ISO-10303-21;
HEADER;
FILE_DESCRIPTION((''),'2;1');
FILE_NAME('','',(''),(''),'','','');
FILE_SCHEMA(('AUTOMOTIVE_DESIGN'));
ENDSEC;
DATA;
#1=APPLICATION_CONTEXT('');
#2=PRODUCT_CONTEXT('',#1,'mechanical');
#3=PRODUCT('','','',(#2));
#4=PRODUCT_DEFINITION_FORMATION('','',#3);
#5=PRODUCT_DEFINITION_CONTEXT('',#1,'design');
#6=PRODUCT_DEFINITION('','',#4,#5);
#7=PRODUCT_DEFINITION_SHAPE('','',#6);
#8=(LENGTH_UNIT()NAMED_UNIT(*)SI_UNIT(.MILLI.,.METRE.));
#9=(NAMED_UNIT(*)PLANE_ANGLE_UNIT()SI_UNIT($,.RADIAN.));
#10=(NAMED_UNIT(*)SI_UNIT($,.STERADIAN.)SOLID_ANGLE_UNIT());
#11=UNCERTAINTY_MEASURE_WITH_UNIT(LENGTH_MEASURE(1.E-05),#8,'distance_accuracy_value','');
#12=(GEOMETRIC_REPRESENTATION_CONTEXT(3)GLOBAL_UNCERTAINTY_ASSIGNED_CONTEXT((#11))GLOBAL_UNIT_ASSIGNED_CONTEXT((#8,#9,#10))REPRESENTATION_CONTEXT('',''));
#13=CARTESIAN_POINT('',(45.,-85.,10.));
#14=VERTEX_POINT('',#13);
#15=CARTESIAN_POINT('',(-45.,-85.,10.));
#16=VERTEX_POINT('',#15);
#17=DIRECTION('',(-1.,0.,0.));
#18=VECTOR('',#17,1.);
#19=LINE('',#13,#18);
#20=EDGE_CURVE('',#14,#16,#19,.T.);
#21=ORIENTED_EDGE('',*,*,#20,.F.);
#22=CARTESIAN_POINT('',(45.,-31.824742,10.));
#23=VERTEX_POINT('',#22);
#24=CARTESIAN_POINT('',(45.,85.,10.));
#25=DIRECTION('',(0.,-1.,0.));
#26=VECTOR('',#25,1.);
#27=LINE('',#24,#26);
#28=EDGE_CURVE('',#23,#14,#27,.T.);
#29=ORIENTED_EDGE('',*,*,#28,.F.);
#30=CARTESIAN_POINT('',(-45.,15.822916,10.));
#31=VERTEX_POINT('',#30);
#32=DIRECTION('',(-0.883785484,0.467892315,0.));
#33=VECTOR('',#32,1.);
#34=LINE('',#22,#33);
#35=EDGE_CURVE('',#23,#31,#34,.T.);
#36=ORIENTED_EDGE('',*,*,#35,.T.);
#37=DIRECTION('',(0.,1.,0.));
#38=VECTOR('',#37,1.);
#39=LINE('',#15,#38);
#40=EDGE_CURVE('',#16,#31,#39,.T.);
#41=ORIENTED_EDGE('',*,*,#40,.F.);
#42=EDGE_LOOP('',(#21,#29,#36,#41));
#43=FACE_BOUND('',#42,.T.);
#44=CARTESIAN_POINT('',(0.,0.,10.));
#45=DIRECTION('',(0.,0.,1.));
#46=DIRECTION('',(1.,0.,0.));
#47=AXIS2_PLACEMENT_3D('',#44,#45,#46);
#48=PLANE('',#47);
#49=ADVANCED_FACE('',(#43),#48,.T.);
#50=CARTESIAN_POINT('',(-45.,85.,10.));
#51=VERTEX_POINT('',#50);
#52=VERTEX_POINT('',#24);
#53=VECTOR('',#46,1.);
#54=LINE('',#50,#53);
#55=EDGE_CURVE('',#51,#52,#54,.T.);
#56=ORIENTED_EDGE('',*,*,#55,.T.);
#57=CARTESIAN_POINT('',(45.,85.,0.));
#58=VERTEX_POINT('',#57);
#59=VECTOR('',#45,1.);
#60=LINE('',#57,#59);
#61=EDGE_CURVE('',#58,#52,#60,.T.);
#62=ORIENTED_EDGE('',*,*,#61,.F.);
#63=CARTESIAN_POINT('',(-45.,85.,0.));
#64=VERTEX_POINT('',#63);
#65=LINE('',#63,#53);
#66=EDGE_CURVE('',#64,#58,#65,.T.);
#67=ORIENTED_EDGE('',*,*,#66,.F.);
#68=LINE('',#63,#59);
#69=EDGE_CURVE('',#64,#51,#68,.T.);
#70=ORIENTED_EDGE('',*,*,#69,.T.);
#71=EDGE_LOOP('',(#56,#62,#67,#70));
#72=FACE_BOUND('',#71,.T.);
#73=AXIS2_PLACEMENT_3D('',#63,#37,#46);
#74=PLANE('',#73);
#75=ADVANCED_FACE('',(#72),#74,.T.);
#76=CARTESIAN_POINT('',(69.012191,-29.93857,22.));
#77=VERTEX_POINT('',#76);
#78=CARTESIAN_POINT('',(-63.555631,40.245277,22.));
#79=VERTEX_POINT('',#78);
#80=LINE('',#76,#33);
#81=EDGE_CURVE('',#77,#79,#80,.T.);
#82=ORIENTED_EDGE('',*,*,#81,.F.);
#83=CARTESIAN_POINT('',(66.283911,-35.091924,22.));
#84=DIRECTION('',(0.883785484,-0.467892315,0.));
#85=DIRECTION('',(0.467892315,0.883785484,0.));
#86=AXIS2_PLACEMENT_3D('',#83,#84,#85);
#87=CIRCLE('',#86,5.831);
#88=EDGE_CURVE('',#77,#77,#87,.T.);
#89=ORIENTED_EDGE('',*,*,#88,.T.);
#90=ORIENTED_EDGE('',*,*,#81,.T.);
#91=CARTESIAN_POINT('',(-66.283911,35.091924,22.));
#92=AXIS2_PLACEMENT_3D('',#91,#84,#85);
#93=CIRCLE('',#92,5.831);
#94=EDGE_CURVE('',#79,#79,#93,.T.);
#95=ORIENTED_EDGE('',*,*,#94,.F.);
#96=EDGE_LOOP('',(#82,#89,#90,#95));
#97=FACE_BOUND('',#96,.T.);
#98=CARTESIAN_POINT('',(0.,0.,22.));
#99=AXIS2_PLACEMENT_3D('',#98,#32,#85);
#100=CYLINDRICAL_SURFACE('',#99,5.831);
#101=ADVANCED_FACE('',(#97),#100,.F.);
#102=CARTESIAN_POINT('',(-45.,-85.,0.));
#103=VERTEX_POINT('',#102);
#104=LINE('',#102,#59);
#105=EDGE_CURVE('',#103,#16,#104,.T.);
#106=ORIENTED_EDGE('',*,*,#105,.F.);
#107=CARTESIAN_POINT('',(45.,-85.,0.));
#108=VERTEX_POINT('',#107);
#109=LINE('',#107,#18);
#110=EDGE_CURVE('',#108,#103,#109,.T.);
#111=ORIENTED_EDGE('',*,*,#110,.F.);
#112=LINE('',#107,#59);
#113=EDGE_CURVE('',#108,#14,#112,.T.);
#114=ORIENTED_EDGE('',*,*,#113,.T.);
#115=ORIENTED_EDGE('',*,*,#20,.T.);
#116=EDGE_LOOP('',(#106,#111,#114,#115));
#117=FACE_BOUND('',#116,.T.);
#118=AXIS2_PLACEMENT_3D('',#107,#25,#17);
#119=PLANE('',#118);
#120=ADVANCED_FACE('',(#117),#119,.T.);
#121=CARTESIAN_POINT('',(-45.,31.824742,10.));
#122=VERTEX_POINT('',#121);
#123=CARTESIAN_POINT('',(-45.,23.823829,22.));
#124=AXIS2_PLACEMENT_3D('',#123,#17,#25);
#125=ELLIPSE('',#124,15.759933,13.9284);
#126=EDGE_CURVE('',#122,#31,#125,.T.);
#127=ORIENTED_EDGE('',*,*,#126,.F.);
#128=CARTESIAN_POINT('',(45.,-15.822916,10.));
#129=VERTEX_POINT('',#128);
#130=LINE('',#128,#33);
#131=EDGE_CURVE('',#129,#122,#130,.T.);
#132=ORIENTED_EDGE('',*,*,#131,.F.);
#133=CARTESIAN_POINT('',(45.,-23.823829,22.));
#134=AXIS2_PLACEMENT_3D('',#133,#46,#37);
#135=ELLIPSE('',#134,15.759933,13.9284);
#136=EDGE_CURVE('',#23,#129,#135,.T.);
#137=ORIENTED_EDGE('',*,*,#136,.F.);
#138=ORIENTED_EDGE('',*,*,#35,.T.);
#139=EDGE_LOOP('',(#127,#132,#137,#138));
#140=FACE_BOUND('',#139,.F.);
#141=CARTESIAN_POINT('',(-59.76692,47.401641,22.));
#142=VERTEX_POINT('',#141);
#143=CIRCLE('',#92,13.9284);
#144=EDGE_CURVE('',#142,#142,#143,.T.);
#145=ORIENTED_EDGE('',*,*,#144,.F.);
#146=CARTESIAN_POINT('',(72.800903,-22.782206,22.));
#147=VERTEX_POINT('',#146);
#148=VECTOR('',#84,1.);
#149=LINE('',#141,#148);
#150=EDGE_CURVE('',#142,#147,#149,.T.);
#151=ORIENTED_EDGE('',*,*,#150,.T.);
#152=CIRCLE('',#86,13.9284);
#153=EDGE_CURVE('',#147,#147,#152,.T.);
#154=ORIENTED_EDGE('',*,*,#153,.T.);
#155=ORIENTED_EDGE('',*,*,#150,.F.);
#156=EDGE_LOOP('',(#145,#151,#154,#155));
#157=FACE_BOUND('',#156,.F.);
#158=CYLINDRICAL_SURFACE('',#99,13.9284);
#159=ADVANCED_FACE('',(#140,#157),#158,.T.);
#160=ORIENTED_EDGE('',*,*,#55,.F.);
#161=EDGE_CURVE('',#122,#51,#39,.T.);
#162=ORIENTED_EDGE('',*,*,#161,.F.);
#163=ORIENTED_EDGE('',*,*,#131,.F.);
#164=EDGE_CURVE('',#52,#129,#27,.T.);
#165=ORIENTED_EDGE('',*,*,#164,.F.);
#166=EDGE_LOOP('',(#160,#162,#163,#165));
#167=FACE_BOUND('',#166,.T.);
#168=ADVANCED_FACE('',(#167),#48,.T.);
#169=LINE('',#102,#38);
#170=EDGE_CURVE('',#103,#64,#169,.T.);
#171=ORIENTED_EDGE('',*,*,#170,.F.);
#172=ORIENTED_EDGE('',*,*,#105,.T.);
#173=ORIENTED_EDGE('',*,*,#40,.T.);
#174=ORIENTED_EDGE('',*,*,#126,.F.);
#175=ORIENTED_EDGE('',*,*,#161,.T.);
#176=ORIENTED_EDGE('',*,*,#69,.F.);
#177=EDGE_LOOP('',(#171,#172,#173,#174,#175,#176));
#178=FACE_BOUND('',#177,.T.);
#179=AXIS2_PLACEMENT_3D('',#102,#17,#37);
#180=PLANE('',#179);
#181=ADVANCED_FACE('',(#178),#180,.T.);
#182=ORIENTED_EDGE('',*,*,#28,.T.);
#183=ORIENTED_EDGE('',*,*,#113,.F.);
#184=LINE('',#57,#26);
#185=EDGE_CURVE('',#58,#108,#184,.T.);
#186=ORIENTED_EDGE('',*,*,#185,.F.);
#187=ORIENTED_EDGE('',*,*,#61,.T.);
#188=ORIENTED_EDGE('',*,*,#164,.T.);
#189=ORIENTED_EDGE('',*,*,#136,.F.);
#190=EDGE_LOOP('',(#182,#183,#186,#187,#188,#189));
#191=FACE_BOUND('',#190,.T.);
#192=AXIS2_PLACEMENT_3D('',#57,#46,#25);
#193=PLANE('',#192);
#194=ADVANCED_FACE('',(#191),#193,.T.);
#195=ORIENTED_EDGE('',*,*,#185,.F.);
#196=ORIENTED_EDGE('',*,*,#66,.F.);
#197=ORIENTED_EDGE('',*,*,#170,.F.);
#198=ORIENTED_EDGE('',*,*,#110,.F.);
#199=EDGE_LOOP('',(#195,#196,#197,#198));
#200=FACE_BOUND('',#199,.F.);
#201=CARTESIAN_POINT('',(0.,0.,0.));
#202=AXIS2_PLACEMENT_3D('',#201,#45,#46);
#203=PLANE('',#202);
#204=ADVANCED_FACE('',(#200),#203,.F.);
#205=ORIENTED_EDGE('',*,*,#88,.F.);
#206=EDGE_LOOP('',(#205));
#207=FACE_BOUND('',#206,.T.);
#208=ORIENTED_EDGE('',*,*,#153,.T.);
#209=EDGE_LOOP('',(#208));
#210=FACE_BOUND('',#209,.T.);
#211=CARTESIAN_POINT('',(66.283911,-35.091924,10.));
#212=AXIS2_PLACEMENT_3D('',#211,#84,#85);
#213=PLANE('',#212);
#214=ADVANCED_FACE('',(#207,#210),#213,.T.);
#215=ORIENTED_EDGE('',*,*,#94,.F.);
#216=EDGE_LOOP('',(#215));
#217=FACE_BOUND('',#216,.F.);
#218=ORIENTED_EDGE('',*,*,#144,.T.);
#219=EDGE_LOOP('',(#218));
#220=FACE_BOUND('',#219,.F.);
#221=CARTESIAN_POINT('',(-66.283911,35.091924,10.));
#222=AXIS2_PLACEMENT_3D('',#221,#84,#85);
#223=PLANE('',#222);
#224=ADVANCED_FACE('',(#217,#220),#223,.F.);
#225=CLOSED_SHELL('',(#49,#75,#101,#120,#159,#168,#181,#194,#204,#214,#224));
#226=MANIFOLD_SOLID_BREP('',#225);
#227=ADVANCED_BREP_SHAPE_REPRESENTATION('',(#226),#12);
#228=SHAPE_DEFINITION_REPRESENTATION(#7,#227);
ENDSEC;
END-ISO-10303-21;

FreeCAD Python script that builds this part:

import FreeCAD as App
import Part
import Sketcher
from FreeCAD import Vector

doc = App.newDocument("Part")
body = doc.addObject("PartDesign::Body", "Body")

# Sketch on XY plane
sketch1 = body.newObject("Sketcher::SketchObject", "Sketch")
sketch1.AttachmentSupport = (doc.getObject("XY_Plane"), [""])
sketch1.MapMode = "FlatFace"
sketch1.addGeometry(Part.LineSegment(Vector(-45, -85, 0), Vector(45, -85, 0)), False)
sketch1.addGeometry(Part.LineSegment(Vector(45, -85, 0), Vector(45, 85, 0)), False)
sketch1.addGeometry(Part.LineSegment(Vector(45, 85, 0), Vector(-45, 85, 0)), False)
sketch1.addGeometry(Part.LineSegment(Vector(-45, 85, 0), Vector(-45, -85, 0)), False)
sketch1.addConstraint(Sketcher.Constraint("Coincident", 0, 2, 1, 1))
sketch1.addConstraint(Sketcher.Constraint("Coincident", 1, 2, 2, 1))
sketch1.addConstraint(Sketcher.Constraint("Coincident", 2, 2, 3, 1))
sketch1.addConstraint(Sketcher.Constraint("Coincident", 3, 2, 0, 1))
sketch1.addConstraint(Sketcher.Constraint("Horizontal", 0))
sketch1.addConstraint(Sketcher.Constraint("Vertical", 1))
sketch1.addConstraint(Sketcher.Constraint("Horizontal", 2))
sketch1.addConstraint(Sketcher.Constraint("Vertical", 3))
sketch1.addConstraint(Sketcher.Constraint("Symmetric", 0, 2, 2, 2, -1, 1))
sketch1.addConstraint(Sketcher.Constraint("DistanceX", 0, 1, 0, 2, 90.0))
sketch1.addConstraint(Sketcher.Constraint("DistanceY", 1, 1, 1, 2, 170.0))
pad1 = body.newObject("PartDesign::Pad", "Pad")
pad1.Profile = sketch1
pad1.Length = 10

# Sketch on an angled plane
sketch2 = body.newObject("Sketcher::SketchObject", "Sketch001")
sketch2.Placement = App.Placement(Vector(0, 0, 10), App.Rotation(Vector(0.467892315, 0.883785484, 0), Vector(0, 0, 1), Vector(0.883785484, -0.467892315, 0), "ZXY"))
sketch2.addGeometry(Part.Circle(Vector(0, 12, 0), Vector(0, 0, 1), 14), False)
sketch2.addGeometry(Part.Circle(Vector(0, 12, 0), Vector(0, 0, 1), 6), False)
sketch2.addConstraint(Sketcher.Constraint("Coincident", 1, 3, 0, 3))
sketch2.addConstraint(Sketcher.Constraint("PointOnObject", 0, 3, -2))
sketch2.addConstraint(Sketcher.Constraint("Diameter", 1, 11.662))
sketch2.addConstraint(Sketcher.Constraint("DistanceY", -1, 1, 0, 3, 12.0))
sketch2.addConstraint(Sketcher.Constraint("Diameter", 0, 27.8568))
pad2 = body.newObject("PartDesign::Pad", "Pad001")
pad2.Profile = sketch2
pad2.Length = 150
pad2.Midplane = True

doc.recompute()
